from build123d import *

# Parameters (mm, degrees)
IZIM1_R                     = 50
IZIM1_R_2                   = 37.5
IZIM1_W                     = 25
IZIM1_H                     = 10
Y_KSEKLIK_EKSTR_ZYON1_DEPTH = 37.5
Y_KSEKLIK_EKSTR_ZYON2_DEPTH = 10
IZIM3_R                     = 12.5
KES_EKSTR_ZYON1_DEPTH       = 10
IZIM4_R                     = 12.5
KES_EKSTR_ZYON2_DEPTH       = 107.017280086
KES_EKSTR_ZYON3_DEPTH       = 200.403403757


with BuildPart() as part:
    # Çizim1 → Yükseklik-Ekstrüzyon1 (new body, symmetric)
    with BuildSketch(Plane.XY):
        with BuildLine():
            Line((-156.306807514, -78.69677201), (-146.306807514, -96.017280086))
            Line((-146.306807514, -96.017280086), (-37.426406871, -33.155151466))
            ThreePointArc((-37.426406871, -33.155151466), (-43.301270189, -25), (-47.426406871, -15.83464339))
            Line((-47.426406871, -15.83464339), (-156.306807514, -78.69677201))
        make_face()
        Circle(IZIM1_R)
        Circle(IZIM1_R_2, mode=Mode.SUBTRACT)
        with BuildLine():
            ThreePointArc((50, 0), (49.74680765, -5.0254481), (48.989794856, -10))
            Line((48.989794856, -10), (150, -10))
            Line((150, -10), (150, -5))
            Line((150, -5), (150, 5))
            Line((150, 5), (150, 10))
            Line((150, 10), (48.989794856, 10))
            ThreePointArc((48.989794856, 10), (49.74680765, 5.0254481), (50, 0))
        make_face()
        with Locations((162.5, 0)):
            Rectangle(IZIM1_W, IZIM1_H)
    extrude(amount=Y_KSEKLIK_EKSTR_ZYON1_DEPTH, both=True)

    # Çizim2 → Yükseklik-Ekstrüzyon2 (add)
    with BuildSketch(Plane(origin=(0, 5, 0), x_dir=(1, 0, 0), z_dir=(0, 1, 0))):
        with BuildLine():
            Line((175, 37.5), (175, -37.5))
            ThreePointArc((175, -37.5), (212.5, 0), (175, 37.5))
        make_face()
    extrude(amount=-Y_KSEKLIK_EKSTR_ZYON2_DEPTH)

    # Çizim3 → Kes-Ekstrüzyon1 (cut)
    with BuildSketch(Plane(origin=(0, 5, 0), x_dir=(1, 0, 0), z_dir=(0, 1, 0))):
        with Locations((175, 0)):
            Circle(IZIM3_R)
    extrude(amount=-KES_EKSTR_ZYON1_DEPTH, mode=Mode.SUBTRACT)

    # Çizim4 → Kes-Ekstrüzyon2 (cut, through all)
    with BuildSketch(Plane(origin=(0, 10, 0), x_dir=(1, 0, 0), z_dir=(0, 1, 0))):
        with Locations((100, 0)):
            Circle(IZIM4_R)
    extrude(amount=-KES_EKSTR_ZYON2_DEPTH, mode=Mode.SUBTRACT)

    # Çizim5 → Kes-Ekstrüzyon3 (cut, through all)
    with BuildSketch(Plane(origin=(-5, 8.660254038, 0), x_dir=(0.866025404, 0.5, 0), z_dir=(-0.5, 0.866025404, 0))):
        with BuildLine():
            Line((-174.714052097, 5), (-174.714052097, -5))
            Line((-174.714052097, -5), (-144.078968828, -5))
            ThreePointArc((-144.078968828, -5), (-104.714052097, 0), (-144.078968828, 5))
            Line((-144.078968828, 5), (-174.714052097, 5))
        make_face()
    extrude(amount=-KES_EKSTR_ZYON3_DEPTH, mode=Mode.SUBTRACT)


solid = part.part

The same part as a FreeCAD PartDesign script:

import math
import FreeCAD as App
import Part
import Sketcher
from FreeCAD import Vector
Q = App.Units.Quantity

doc = App.newDocument("Part")
body = doc.addObject("PartDesign::Body", "Body")

# Sketch on XY plane
sketch1 = body.newObject("Sketcher::SketchObject", "Sketch")
sketch1.AttachmentSupport = (doc.getObject("XY_Plane"), [""])
sketch1.MapMode = "FlatFace"
sketch1.addGeometry(Part.LineSegment(Vector(-156.306808, -78.696772, 0), Vector(-146.306808, -96.01728, 0)), False)
sketch1.addGeometry(Part.LineSegment(Vector(-146.306808, -96.01728, 0), Vector(-37.426407, -33.155151, 0)), False)
sketch1.addGeometry(Part.ArcOfCircle(Part.Circle(Vector(0, 0, 0), Vector(0, 0, 1), 50), math.radians(-138.463041), math.radians(-11.536959)), False)
sketch1.addGeometry(Part.LineSegment(Vector(48.989795, -10, 0), Vector(150, -10, 0)), False)
sketch1.addGeometry(Part.LineSegment(Vector(150, -10, 0), Vector(150, -5, 0)), False)
sketch1.addGeometry(Part.LineSegment(Vector(150, -5, 0), Vector(175, -5, 0)), False)
sketch1.addGeometry(Part.LineSegment(Vector(175, -5, 0), Vector(175, 5, 0)), False)
sketch1.addGeometry(Part.LineSegment(Vector(175, 5, 0), Vector(150, 5, 0)), False)
sketch1.addGeometry(Part.LineSegment(Vector(150, 5, 0), Vector(150, 10, 0)), False)
sketch1.addGeometry(Part.LineSegment(Vector(150, 10, 0), Vector(48.989795, 10, 0)), False)
sketch1.addGeometry(Part.ArcOfCircle(Part.Circle(Vector(0, 0, 0), Vector(0, 0, 1), 50), math.radians(11.536959), math.radians(198.463041)), False)
sketch1.addGeometry(Part.LineSegment(Vector(-47.426407, -15.834643, 0), Vector(-156.306808, -78.696772, 0)), False)
sketch1.addGeometry(Part.Circle(Vector(0, 0, 0), Vector(0, 0, 1), 37.5), False)
sketch1.addConstraint(Sketcher.Constraint("Coincident", 0, 2, 1, 1))
sketch1.addConstraint(Sketcher.Constraint("Coincident", 1, 2, 2, 1))
sketch1.addConstraint(Sketcher.Constraint("Coincident", 2, 2, 3, 1))
sketch1.addConstraint(Sketcher.Constraint("Coincident", 3, 2, 4, 1))
sketch1.addConstraint(Sketcher.Constraint("Coincident", 4, 2, 5, 1))
sketch1.addConstraint(Sketcher.Constraint("Coincident", 5, 2, 6, 1))
sketch1.addConstraint(Sketcher.Constraint("Coincident", 6, 2, 7, 1))
sketch1.addConstraint(Sketcher.Constraint("Coincident", 7, 2, 8, 1))
sketch1.addConstraint(Sketcher.Constraint("Coincident", 8, 2, 9, 1))
sketch1.addConstraint(Sketcher.Constraint("Coincident", 9, 2, 10, 1))
sketch1.addConstraint(Sketcher.Constraint("Coincident", 10, 2, 11, 1))
sketch1.addConstraint(Sketcher.Constraint("Coincident", 11, 2, 0, 1))
sketch1.addConstraint(Sketcher.Constraint("Horizontal", 3))
sketch1.addConstraint(Sketcher.Constraint("Vertical", 4))
sketch1.addConstraint(Sketcher.Constraint("Horizontal", 5))
sketch1.addConstraint(Sketcher.Constraint("Vertical", 6))
sketch1.addConstraint(Sketcher.Constraint("Horizontal", 7))
sketch1.addConstraint(Sketcher.Constraint("Vertical", 8))
sketch1.addConstraint(Sketcher.Constraint("Horizontal", 9))
sketch1.addConstraint(Sketcher.Constraint("Coincident", 2, 3, -1, 1))
sketch1.addConstraint(Sketcher.Constraint("Coincident", 10, 3, -1, 1))
sketch1.addConstraint(Sketcher.Constraint("Coincident", 12, 3, -1, 1))
sketch1.addConstraint(Sketcher.Constraint("Equal", 2, 10))
sketch1.addConstraint(Sketcher.Constraint("Symmetric", 4, 2, 7, 2, -1))
sketch1.addConstraint(Sketcher.Constraint("Perpendicular", 0, 1))
sketch1.addConstraint(Sketcher.Constraint("Parallel", 1, 11))
sketch1.addConstraint(Sketcher.Constraint("Vertical", 2, 2, 9, 2))
sketch1.addConstraint(Sketcher.Constraint("Equal", 1, 11))
sketch1.addConstraint(Sketcher.Constraint("Diameter", 12, Q("75 mm")))
sketch1.addConstraint(Sketcher.Constraint("Radius", 2, Q("50 mm")))
sketch1.addConstraint(Sketcher.Constraint("DistanceX", 5, 1, 5, 2, Q("25 mm")))
sketch1.addConstraint(Sketcher.Constraint("DistanceY", 4, 1, 4, 2, Q("5 mm")))
sketch1.addConstraint(Sketcher.Constraint("DistanceY", 6, 1, 6, 2, Q("10 mm")))
sketch1.addConstraint(Sketcher.Constraint("Angle", 0, Q("-60 deg")))
sketch1.addConstraint(Sketcher.Constraint("Distance", 0, Q("20 mm")))
sketch1.addConstraint(Sketcher.Constraint("DistanceX", -1, 1, 3, 2, Q("150 mm")))
sketch1.addConstraint(Sketcher.Constraint("DistanceX", 0, 2, 1, 2, Q("108.880401 mm")))
pad1 = body.newObject("PartDesign::Pad", "Pad")
pad1.Profile = sketch1
pad1.Length = 75
pad1.Midplane = True

# Sketch on XZ plane
sketch2 = body.newObject("Sketcher::SketchObject", "Sketch001")
sketch2.AttachmentSupport = (doc.getObject("XZ_Plane"), [""])
sketch2.MapMode = "FlatFace"
sketch2.AttachmentOffset = App.Placement(Vector(0, 0, -5), App.Rotation())
sketch2.addGeometry(Part.LineSegment(Vector(175, -37.5, 0), Vector(175, 37.5, 0)), False)
sketch2.addGeometry(Part.ArcOfCircle(Part.Circle(Vector(175, 0, 0), Vector(0, 0, 1), 37.5), math.radians(-90), math.radians(90)), False)
sketch2.addConstraint(Sketcher.Constraint("Coincident", 0, 1, 1, 1))
sketch2.addConstraint(Sketcher.Constraint("Coincident", 1, 2, 0, 2))
sketch2.addConstraint(Sketcher.Constraint("Vertical", 0))
sketch2.addConstraint(Sketcher.Constraint("PointOnObject", 1, 3, -1))
sketch2.addConstraint(Sketcher.Constraint("Vertical", 1, 3, 0, 1))
sketch2.addConstraint(Sketcher.Constraint("Radius", 1, Q("37.5 mm")))
sketch2.addConstraint(Sketcher.Constraint("DistanceX", -1, 1, 1, 3, Q("175 mm")))
pad2 = body.newObject("PartDesign::Pad", "Pad001")
pad2.Profile = sketch2
pad2.Length = 10

# Sketch on XZ plane
sketch3 = body.newObject("Sketcher::SketchObject", "Sketch002")
sketch3.AttachmentSupport = (doc.getObject("XZ_Plane"), [""])
sketch3.MapMode = "FlatFace"
sketch3.AttachmentOffset = App.Placement(Vector(0, 0, -5), App.Rotation())
sketch3.addGeometry(Part.Circle(Vector(175, 0, 0), Vector(0, 0, 1), 12.5), False)
sketch3.addConstraint(Sketcher.Constraint("PointOnObject", 0, 3, -1))
sketch3.addConstraint(Sketcher.Constraint("Diameter", 0, Q("25 mm")))
sketch3.addConstraint(Sketcher.Constraint("DistanceX", -1, 1, 0, 3, Q("175 mm")))
pocket1 = body.newObject("PartDesign::Pocket", "Pocket")
pocket1.Profile = sketch3
pocket1.Length = 10
pocket1.Reversed = True

# Sketch on XZ plane
sketch4 = body.newObject("Sketcher::SketchObject", "Sketch003")
sketch4.AttachmentSupport = (doc.getObject("XZ_Plane"), [""])
sketch4.MapMode = "FlatFace"
sketch4.AttachmentOffset = App.Placement(Vector(0, 0, -10), App.Rotation())
sketch4.addGeometry(Part.Circle(Vector(100, 0, 0), Vector(0, 0, 1), 12.5), False)
sketch4.addConstraint(Sketcher.Constraint("PointOnObject", 0, 3, -1))
sketch4.addConstraint(Sketcher.Constraint("Diameter", 0, Q("25 mm")))
sketch4.addConstraint(Sketcher.Constraint("DistanceX", -1, 1, 0, 3, Q("100 mm")))
pocket2 = body.newObject("PartDesign::Pocket", "Pocket001")
pocket2.Profile = sketch4
pocket2.Type = "ThroughAll"
pocket2.Reversed = True

# Sketch on an angled plane
sketch5 = body.newObject("Sketcher::SketchObject", "Sketch004")
sketch5.Placement = App.Placement(Vector(-5, 8.660254, 0), App.Rotation(Vector(0.866025404, 0.5, 0), Vector(0, 0, -1), Vector(-0.5, 0.866025404, 0), "ZXY"))
sketch5.addGeometry(Part.LineSegment(Vector(-174.714052, 5, 0), Vector(-174.714052, -5, 0)), False)
sketch5.addGeometry(Part.LineSegment(Vector(-174.714052, -5, 0), Vector(-144.078969, -5, 0)), False)
sketch5.addGeometry(Part.ArcOfCircle(Part.Circle(Vector(-124.714052, 0, 0), Vector(0, 0, 1), 20), math.radians(-165.522488), math.radians(165.522488)), False)
sketch5.addGeometry(Part.LineSegment(Vector(-144.078969, 5, 0), Vector(-174.714052, 5, 0)), False)
sketch5.addConstraint(Sketcher.Constraint("Coincident", 0, 2, 1, 1))
sketch5.addConstraint(Sketcher.Constraint("Coincident", 1, 2, 2, 1))
sketch5.addConstraint(Sketcher.Constraint("Coincident", 2, 2, 3, 1))
sketch5.addConstraint(Sketcher.Constraint("Coincident", 3, 2, 0, 1))
sketch5.addConstraint(Sketcher.Constraint("Vertical", 0))
sketch5.addConstraint(Sketcher.Constraint("Horizontal", 1))
sketch5.addConstraint(Sketcher.Constraint("Horizontal", 3))
sketch5.addConstraint(Sketcher.Constraint("Symmetric", 1, 2, 2, 2, -1))
sketch5.addConstraint(Sketcher.Constraint("Radius", 2, Q("20 mm")))
sketch5.addConstraint(Sketcher.Constraint("DistanceY", 0, 2, 0, 1, Q("10 mm")))
sketch5.addConstraint(Sketcher.Constraint("DistanceX", 0, 2, 2, 3, Q("50 mm")))
sketch5.addConstraint(Sketcher.Constraint("DistanceX", 1, 2, -1, 1, Q("144.078969 mm")))
pocket3 = body.newObject("PartDesign::Pocket", "Pocket002")
pocket3.Profile = sketch5
pocket3.Type = "ThroughAll"

doc.recompute()
